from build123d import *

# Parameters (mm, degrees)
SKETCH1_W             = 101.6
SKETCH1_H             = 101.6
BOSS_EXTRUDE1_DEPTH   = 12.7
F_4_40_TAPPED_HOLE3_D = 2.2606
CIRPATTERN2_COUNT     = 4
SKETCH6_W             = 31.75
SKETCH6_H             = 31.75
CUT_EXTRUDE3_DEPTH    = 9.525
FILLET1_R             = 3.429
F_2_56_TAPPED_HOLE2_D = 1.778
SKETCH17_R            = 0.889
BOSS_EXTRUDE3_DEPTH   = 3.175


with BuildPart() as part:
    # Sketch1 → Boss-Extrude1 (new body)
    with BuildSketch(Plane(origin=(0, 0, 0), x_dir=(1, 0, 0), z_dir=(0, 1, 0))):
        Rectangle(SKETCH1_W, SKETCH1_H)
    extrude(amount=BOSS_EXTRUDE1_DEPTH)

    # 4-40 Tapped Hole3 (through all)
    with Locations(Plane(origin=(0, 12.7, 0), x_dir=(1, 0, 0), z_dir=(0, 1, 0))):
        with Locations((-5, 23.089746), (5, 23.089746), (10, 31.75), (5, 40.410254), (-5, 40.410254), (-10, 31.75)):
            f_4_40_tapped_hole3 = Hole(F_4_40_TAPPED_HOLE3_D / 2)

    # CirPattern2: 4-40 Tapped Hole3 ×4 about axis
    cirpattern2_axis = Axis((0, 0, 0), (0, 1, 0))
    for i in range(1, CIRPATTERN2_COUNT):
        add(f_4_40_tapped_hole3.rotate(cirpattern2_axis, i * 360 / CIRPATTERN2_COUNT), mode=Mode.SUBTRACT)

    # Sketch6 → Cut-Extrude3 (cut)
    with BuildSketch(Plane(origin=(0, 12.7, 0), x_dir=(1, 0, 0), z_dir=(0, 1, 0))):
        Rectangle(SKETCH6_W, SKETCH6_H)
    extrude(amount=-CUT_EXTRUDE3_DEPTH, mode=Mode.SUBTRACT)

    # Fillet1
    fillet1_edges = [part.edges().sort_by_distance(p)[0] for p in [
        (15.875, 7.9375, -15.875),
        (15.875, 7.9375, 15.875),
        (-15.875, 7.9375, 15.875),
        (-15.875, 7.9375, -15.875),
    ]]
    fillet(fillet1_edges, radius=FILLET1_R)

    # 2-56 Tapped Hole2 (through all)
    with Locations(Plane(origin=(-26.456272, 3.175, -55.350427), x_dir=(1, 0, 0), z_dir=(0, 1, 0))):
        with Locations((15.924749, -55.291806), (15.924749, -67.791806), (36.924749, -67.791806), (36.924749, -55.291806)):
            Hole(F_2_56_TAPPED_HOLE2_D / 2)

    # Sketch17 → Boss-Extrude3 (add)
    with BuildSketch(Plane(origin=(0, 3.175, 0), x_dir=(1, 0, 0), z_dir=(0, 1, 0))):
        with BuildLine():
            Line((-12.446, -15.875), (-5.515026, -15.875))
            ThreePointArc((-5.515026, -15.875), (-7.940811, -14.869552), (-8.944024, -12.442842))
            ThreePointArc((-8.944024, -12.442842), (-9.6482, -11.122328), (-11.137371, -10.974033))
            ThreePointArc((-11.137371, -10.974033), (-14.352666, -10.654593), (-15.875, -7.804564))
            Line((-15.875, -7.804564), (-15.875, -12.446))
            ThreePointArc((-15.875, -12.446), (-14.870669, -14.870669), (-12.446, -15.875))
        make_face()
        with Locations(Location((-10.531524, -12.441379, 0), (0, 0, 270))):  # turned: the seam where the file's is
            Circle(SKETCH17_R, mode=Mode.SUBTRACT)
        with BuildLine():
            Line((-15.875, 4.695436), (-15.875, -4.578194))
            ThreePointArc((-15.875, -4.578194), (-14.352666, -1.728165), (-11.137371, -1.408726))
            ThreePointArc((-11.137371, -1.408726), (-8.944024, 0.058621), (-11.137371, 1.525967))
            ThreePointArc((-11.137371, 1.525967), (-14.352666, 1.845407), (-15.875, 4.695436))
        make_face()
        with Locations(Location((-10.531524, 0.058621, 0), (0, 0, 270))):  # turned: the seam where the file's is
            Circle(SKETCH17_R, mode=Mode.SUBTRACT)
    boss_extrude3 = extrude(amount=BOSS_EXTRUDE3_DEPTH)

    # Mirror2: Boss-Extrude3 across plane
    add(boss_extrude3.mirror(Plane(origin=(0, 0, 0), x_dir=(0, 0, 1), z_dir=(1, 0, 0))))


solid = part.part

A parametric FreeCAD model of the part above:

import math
import FreeCAD as App
import Part
import Sketcher
from FreeCAD import Vector
Q = App.Units.Quantity


def edges_at(feature, points):
    """Names of the edges that pass closest to the given points."""
    edges = feature.Shape.Edges
    near = lambda p: min(range(len(edges)), key=lambda i: edges[i].distToShape(Part.Vertex(*p))[0])
    return sorted({f"Edge{near(p) + 1}" for p in points})

doc = App.newDocument("Part")
body = doc.addObject("PartDesign::Body", "Body")

sketch1 = body.newObject("Sketcher::SketchObject", "Sketch")
sketch1.AttachmentSupport = (doc.getObject("XZ_Plane"), [""])
sketch1.MapMode = "FlatFace"
sketch1.addGeometry([
    Part.LineSegment(Vector(-51, -51, 0), Vector(-51, 51, 0)),
    Part.LineSegment(Vector(-51, 51, 0), Vector(51, 51, 0)),
    Part.LineSegment(Vector(51, 51, 0), Vector(51, -51, 0)),
    Part.LineSegment(Vector(51, -51, 0), Vector(-51, -51, 0)),
], False)
sketch1.addConstraint([
    Sketcher.Constraint("Coincident", 0, 2, 1, 1),
    Sketcher.Constraint("Coincident", 1, 2, 2, 1),
    Sketcher.Constraint("Coincident", 2, 2, 3, 1),
    Sketcher.Constraint("Coincident", 3, 2, 0, 1),
    Sketcher.Constraint("Vertical", 0),
    Sketcher.Constraint("Horizontal", 1),
    Sketcher.Constraint("Vertical", 2),
    Sketcher.Constraint("Horizontal", 3),
    Sketcher.Constraint("Symmetric", 0, 2, 2, 2, -1, 1),
    Sketcher.Constraint("Equal", 3, 0),
    Sketcher.Constraint("DistanceX", 1, 1, 1, 2, Q("4 in")),
])
pad1 = body.newObject("PartDesign::Pad", "Pad")
pad1.Profile = sketch1
pad1.Length = Q("0.5 in")
pad1.Reversed = True

sketch2 = body.newObject("Sketcher::SketchObject", "Sketch001")
sketch2.AttachmentSupport = (doc.getObject("XZ_Plane"), [""])
sketch2.MapMode = "FlatFace"
sketch2.AttachmentOffset = App.Placement(Vector(0, 0, -0.5 * 25.4), App.Rotation())
sketch2.addGeometry([
    Part.Circle(Vector(-5, -23.1, 0), Vector(0, 0, 1), 1.1),
    Part.Circle(Vector(5, -23.1, 0), Vector(0, 0, 1), 1.1),
    Part.Circle(Vector(10, -31.8, 0), Vector(0, 0, 1), 1.1),
    Part.Circle(Vector(5, -40.4, 0), Vector(0, 0, 1), 1.1),
    Part.Circle(Vector(-5, -40.4, 0), Vector(0, 0, 1), 1.1),
    Part.Circle(Vector(-10, -31.8, 0), Vector(0, 0, 1), 1.1),
], False)
sketch2.addConstraint([
    Sketcher.Constraint("Equal", 0, 1),
    Sketcher.Constraint("Equal", 1, 2),
    Sketcher.Constraint("Equal", 2, 3),
    Sketcher.Constraint("Equal", 3, 4),
    Sketcher.Constraint("Equal", 4, 5),
    Sketcher.Constraint("Symmetric", 0, 3, 1, 3, -2),
    Sketcher.Constraint("Symmetric", 3, 3, 4, 3, -2),
    Sketcher.Constraint("Symmetric", 2, 3, 5, 3, -2),
    Sketcher.Constraint("Vertical", 1, 3, 3, 3),
    Sketcher.Constraint("Diameter", 0, Q("0.089 in")),
    Sketcher.Constraint("DistanceY", 2, 3, -1, 1, Q("1.25 in")),
    Sketcher.Constraint("DistanceX", 0, 3, -1, 1, 5.0),
    Sketcher.Constraint("DistanceX", -1, 1, 2, 3, 10.0),
    Sketcher.Constraint("DistanceY", 3, 3, 1, 3, 17.320508),
    Sketcher.Constraint("DistanceY", 0, 3, -1, 1, 23.089746),
])
doc.recompute()
hole = body.newObject("PartDesign::Hole", "Hole")
hole.Profile = sketch2
hole.ThreadType = "None"
hole.Diameter = Q("0.089 in")
hole.DepthType = "ThroughAll"
hole.Reversed = True
doc.recompute()

polarpattern = body.newObject("PartDesign::PolarPattern", "PolarPattern")
polarpattern.Originals = [hole]
polarpattern.Axis = (doc.getObject("Y_Axis"), [""])
polarpattern.Angle = 360
polarpattern.Occurrences = 4
body.Tip = polarpattern

sketch3 = body.newObject("Sketcher::SketchObject", "Sketch002")
sketch3.AttachmentSupport = (doc.getObject("XZ_Plane"), [""])
sketch3.MapMode = "FlatFace"
sketch3.AttachmentOffset = App.Placement(Vector(0, 0, -0.5 * 25.4), App.Rotation())
sketch3.addGeometry([
    Part.LineSegment(Vector(-16, -16, 0), Vector(-16, 16, 0)),
    Part.LineSegment(Vector(-16, 16, 0), Vector(16, 16, 0)),
    Part.LineSegment(Vector(16, 16, 0), Vector(16, -16, 0)),
    Part.LineSegment(Vector(16, -16, 0), Vector(-16, -16, 0)),
], False)
sketch3.addConstraint([
    Sketcher.Constraint("Coincident", 0, 2, 1, 1),
    Sketcher.Constraint("Coincident", 1, 2, 2, 1),
    Sketcher.Constraint("Coincident", 2, 2, 3, 1),
    Sketcher.Constraint("Coincident", 3, 2, 0, 1),
    Sketcher.Constraint("Vertical", 0),
    Sketcher.Constraint("Horizontal", 1),
    Sketcher.Constraint("Vertical", 2),
    Sketcher.Constraint("Horizontal", 3),
    Sketcher.Constraint("Symmetric", 0, 2, 2, 2, -1, 1),
    Sketcher.Constraint("Equal", 3, 0),
    Sketcher.Constraint("DistanceX", 1, 1, 1, 2, Q("1.25 in")),
])
pocket1 = body.newObject("PartDesign::Pocket", "Pocket")
pocket1.Profile = sketch3
pocket1.Length = Q("0.375 in")
pocket1.Reversed = True
doc.recompute()

fillet = body.newObject("PartDesign::Fillet", "Fillet")
fillet.Base = (pocket1, edges_at(pocket1, [
    (15.875, 7.938, -15.875),
    (15.875, 7.938, 15.875),
    (-15.875, 7.938, 15.875),
    (-15.875, 7.938, -15.875),
]))
fillet.Radius = Q("0.135 in")

sketch4 = body.newObject("Sketcher::SketchObject", "Sketch003")
sketch4.AttachmentSupport = (doc.getObject("XZ_Plane"), [""])
sketch4.MapMode = "FlatFace"
sketch4.AttachmentOffset = App.Placement(Vector(0, 0, -0.125 * 25.4), App.Rotation())
sketch4.addGeometry([
    Part.Circle(Vector(-10.5, -0.1, 0), Vector(0, 0, 1), 0.9),
    Part.Circle(Vector(-10.5, 12.4, 0), Vector(0, 0, 1), 0.9),
    Part.Circle(Vector(10.5, 12.4, 0), Vector(0, 0, 1), 0.9),
    Part.Circle(Vector(10.5, -0.1, 0), Vector(0, 0, 1), 0.9),
], False)
sketch4.addConstraint([
    Sketcher.Constraint("Equal", 0, 1),
    Sketcher.Constraint("Equal", 1, 2),
    Sketcher.Constraint("Equal", 2, 3),
    Sketcher.Constraint("Horizontal", 1, 3, 2, 3),
    Sketcher.Constraint("Horizontal", 0, 3, 3, 3),
    Sketcher.Constraint("Vertical", 0, 3, 1, 3),
    Sketcher.Constraint("Vertical", 2, 3, 3, 3),
    Sketcher.Constraint("Diameter", 0, Q("0.07 in")),
    Sketcher.Constraint("DistanceY", 0, 3, 1, 3, 12.5),
    Sketcher.Constraint("DistanceX", 1, 3, 2, 3, 21.0),
    Sketcher.Constraint("DistanceY", 0, 3, -1, 1, 0.058621),
    Sketcher.Constraint("DistanceX", 0, 3, -1, 1, 10.531523),
])
doc.recompute()
hole2 = body.newObject("PartDesign::Hole", "Hole001")
hole2.Profile = sketch4
hole2.ThreadType = "None"
hole2.Diameter = Q("0.07 in")
hole2.DepthType = "ThroughAll"
hole2.Reversed = True

sketch5 = body.newObject("Sketcher::SketchObject", "Sketch004")
sketch5.AttachmentSupport = (doc.getObject("XZ_Plane"), [""])
sketch5.MapMode = "FlatFace"
sketch5.AttachmentOffset = App.Placement(Vector(0, 0, -0.125 * 25.4), App.Rotation())
sketch5.addGeometry([
    Part.LineSegment(Vector(-12.4, 15.9, 0), Vector(-5.5, 15.9, 0)),
    Part.ArcOfCircle(Part.Circle(Vector(-5.5, 12.4, 0), Vector(0, 0, 1), 3.4), math.radians(90), math.radians(180)),
    Part.ArcOfCircle(Part.Circle(Vector(-10.5, 12.4, 0), Vector(0, 0, 1), 1.6), math.radians(-112), math.radians(0)),
    Part.ArcOfCircle(Part.Circle(Vector(-12.4, 7.8, 0), Vector(0, 0, 1), 3.4), math.radians(68), math.radians(180)),
    Part.LineSegment(Vector(-15.9, 7.8, 0), Vector(-15.9, 12.4, 0)),
    Part.ArcOfCircle(Part.Circle(Vector(-12.4, 12.4, 0), Vector(0, 0, 1), 3.4), math.radians(90), math.radians(180)),
    Part.Circle(Vector(-10.5, 12.4, 0), Vector(0, 0, 1), 0.9),
    Part.LineSegment(Vector(-15.9, -4.7, 0), Vector(-15.9, 4.6, 0)),
    Part.ArcOfCircle(Part.Circle(Vector(-12.4, 4.6, 0), Vector(0, 0, 1), 3.4), math.radians(180), math.radians(292)),
    Part.ArcOfCircle(Part.Circle(Vector(-10.5, -0.1, 0), Vector(0, 0, 1), 1.6), math.radians(-112), math.radians(112)),
    Part.ArcOfCircle(Part.Circle(Vector(-12.4, -4.7, 0), Vector(0, 0, 1), 3.4), math.radians(68), math.radians(180)),
    Part.Circle(Vector(-10.5, -0.1, 0), Vector(0, 0, 1), 0.9),
], False)
sketch5.addConstraint([
    Sketcher.Constraint("Tangent", 0, 2, 1, 1),
    Sketcher.Constraint("Tangent", 1, 2, 2, 2),
    Sketcher.Constraint("Tangent", 2, 1, 3, 1),
    Sketcher.Constraint("Tangent", 3, 2, 4, 1),
    Sketcher.Constraint("Tangent", 4, 2, 5, 2),
    Sketcher.Constraint("Tangent", 5, 1, 0, 1),
    Sketcher.Constraint("Tangent", 7, 2, 8, 1),
    Sketcher.Constraint("Tangent", 8, 2, 9, 2),
    Sketcher.Constraint("Tangent", 9, 1, 10, 1),
    Sketcher.Constraint("Tangent", 10, 2, 7, 1),
    Sketcher.Constraint("Horizontal", 0),
    Sketcher.Constraint("Vertical", 4),
    Sketcher.Constraint("Vertical", 7),
    Sketcher.Constraint("Coincident", 6, 3, 2, 3),
    Sketcher.Constraint("Coincident", 11, 3, 9, 3),
    Sketcher.Constraint("Equal", 1, 3),
    Sketcher.Constraint("Equal", 3, 5),
    Sketcher.Constraint("Equal", 5, 8),
    Sketcher.Constraint("Equal", 2, 9),
    Sketcher.Constraint("Equal", 8, 10),
    Sketcher.Constraint("Equal", 6, 11),
    Sketcher.Constraint("Vertical", 5, 3, 8, 3),
    Sketcher.Constraint("Vertical", 6, 3, 9, 3),
    Sketcher.Constraint("Diameter", 6, Q("0.07 in")),
    Sketcher.Constraint("Radius", 1, Q("0.135 in")),
    Sketcher.Constraint("Radius", 2, Q("0.0625 in")),
    Sketcher.Constraint("DistanceY", -1, 1, 1, 3, Q("0.49 in")),
    Sketcher.Constraint("DistanceX", 3, 3, -1, 1, Q("0.49 in")),
    Sketcher.Constraint("DistanceY", 7, 1, 7, 2, 9.27363),
    Sketcher.Constraint("DistanceY", 9, 3, 6, 3, 12.499999),
    Sketcher.Constraint("DistanceY", 4, 1, 4, 2, 4.641436),
])
pad2 = body.newObject("PartDesign::Pad", "Pad001")
pad2.Profile = sketch5
pad2.Length = Q("0.125 in")
pad2.Reversed = True
doc.recompute()

mirrored = body.newObject("PartDesign::Mirrored", "Mirrored")
mirrored.Originals = [pad2]
mirrored.MirrorPlane = (doc.getObject("YZ_Plane"), [""])
body.Tip = mirrored

doc.recompute()
